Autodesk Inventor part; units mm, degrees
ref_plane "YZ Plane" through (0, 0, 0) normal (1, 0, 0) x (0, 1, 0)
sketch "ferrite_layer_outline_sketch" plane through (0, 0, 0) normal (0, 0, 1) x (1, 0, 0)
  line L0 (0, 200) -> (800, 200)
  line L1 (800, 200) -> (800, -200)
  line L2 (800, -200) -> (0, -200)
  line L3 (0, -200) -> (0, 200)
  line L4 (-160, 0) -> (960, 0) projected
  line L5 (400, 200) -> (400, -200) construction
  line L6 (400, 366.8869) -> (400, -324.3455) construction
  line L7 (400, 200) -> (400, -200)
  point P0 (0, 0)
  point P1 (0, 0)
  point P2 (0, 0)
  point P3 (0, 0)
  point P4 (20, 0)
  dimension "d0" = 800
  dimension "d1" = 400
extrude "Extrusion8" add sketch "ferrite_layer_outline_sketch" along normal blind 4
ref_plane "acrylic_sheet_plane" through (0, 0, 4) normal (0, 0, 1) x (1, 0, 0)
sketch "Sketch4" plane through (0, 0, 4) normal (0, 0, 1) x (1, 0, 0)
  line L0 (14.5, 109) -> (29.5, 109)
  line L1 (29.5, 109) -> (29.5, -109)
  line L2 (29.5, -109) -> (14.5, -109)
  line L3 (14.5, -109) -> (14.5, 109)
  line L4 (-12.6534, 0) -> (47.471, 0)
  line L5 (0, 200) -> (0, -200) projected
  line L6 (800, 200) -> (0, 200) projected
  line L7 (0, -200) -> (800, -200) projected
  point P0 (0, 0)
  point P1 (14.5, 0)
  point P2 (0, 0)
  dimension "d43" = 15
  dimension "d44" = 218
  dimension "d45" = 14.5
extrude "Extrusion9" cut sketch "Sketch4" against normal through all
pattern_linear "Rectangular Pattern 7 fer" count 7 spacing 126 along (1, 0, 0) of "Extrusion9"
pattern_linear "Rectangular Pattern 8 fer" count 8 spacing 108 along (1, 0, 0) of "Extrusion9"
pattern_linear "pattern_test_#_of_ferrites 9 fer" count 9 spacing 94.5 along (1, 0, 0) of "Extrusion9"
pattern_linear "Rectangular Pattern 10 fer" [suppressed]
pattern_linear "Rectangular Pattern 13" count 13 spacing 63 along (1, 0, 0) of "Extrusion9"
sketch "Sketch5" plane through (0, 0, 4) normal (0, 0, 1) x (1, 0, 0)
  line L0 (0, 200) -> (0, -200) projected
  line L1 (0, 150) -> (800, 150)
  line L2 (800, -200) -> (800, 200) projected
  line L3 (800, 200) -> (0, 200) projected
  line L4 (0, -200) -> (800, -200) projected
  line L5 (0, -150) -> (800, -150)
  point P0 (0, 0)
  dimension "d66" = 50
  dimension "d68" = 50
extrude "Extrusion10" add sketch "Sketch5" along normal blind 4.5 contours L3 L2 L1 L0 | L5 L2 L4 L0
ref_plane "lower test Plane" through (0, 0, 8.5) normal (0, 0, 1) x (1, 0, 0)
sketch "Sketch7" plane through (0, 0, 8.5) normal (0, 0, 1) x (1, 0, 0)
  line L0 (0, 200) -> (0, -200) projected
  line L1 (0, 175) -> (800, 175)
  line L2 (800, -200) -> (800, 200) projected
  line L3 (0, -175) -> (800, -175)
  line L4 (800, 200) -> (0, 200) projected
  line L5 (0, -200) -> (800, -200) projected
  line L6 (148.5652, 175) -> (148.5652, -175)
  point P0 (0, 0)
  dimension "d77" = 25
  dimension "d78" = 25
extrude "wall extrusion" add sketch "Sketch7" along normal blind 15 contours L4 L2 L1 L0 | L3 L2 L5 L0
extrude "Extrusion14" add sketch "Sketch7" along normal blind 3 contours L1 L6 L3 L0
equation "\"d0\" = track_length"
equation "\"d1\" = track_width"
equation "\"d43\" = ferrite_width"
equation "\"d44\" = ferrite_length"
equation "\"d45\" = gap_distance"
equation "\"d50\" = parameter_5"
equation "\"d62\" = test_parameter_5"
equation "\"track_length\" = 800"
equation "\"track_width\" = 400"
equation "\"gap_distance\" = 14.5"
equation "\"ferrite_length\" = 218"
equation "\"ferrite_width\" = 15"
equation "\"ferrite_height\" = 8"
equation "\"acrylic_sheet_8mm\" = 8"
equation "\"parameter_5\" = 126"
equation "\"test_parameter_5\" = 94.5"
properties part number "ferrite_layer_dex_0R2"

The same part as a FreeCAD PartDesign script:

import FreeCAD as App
import Part
import Sketcher

doc = App.newDocument("Part")
params = doc.addObject("Spreadsheet::Sheet", "Params")
for row, (alias, value) in enumerate([
    ("sketch1_width", "800 mm"),
    ("sketch1_height", "400 mm"),
    ("pad1_length", "4 mm"),
    ("sketch2_width", "15 mm"),
    ("sketch2_height", "218 mm"),
    ("linearpattern_pitch", "126 mm"),
    ("linearpattern2_pitch", "108 mm"),
    ("linearpattern3_pitch", "94.5 mm"),
    ("linearpattern4_pitch", "63 mm"),
    ("sketch3_height", "50 mm"),
    ("sketch3_width", "800 mm"),
    ("pad2_length", "4.5 mm"),
    ("sketch4_height", "25 mm"),
    ("sketch4_width", "800 mm"),
    ("pad3_length", "15 mm"),
    ("sketch5_height", "350 mm"),
    ("pad4_length", "3 mm"),
], start=1):
    params.set(f"A{row}", alias)
    params.set(f"B{row}", "=" + value)
    params.setAlias(f"B{row}", alias)

body = doc.addObject("PartDesign::Body", "Body")

# Sketch on XY plane
sketch1 = body.newObject("Sketcher::SketchObject", "Sketch")
sketch1.AttachmentSupport = (doc.getObject("XY_Plane"), [""])
sketch1.MapMode = "FlatFace"
sketch1.addGeometry([
    Part.LineSegment(App.Vector(0, 200, 0), App.Vector(0, -200, 0)),
    Part.LineSegment(App.Vector(0, -200, 0), App.Vector(800, -200, 0)),
    Part.LineSegment(App.Vector(800, -200, 0), App.Vector(800, 200, 0)),
    Part.LineSegment(App.Vector(800, 200, 0), App.Vector(0, 200, 0)),
], False)
sketch1.addConstraint([
    Sketcher.Constraint("Coincident", 0, 2, 1, 1),
    Sketcher.Constraint("Coincident", 1, 2, 2, 1),
    Sketcher.Constraint("Coincident", 2, 2, 3, 1),
    Sketcher.Constraint("Coincident", 3, 2, 0, 1),
    Sketcher.Constraint("Vertical", 0),
    Sketcher.Constraint("Horizontal", 1),
    Sketcher.Constraint("Vertical", 2),
    Sketcher.Constraint("Horizontal", 3),
    Sketcher.Constraint("Symmetric", 0, 2, 3, 2, -1, 1),
    Sketcher.Constraint("DistanceX", 1, 1, 1, 2, 800.0),
    Sketcher.Constraint("DistanceY", 0, 2, 0, 1, 400.0),
])
sketch1.setExpression("Constraints[9]", "Params.sketch1_width")
sketch1.setExpression("Constraints[10]", "Params.sketch1_height")
pad1 = body.newObject("PartDesign::Pad", "Pad")
pad1.Profile = sketch1
pad1.setExpression("Length", "Params.pad1_length")

# Sketch on XY plane
sketch2 = body.newObject("Sketcher::SketchObject", "Sketch001")
sketch2.AttachmentSupport = (doc.getObject("XY_Plane"), [""])
sketch2.MapMode = "FlatFace"
sketch2.AttachmentOffset = App.Placement(App.Vector(0, 0, 4), App.Rotation())
sketch2.addGeometry([
    Part.LineSegment(App.Vector(30, 109, 0), App.Vector(14, 109, 0)),
    Part.LineSegment(App.Vector(14, 109, 0), App.Vector(14, -109, 0)),
    Part.LineSegment(App.Vector(14, -109, 0), App.Vector(30, -109, 0)),
    Part.LineSegment(App.Vector(30, -109, 0), App.Vector(30, 109, 0)),
], False)
sketch2.addConstraint([
    Sketcher.Constraint("Coincident", 0, 2, 1, 1),
    Sketcher.Constraint("Coincident", 1, 2, 2, 1),
    Sketcher.Constraint("Coincident", 2, 2, 3, 1),
    Sketcher.Constraint("Coincident", 3, 2, 0, 1),
    Sketcher.Constraint("Horizontal", 0),
    Sketcher.Constraint("Vertical", 1),
    Sketcher.Constraint("Horizontal", 2),
    Sketcher.Constraint("Vertical", 3),
    Sketcher.Constraint("DistanceX", 0, 2, 0, 1, 15.0),
    Sketcher.Constraint("DistanceY", 1, 2, 1, 1, 218.0),
    Sketcher.Constraint("DistanceX", -1, 1, 0, 2, 14.5),
    Sketcher.Constraint("DistanceY", -1, 1, 0, 2, 109.0),
])
sketch2.setExpression("Constraints[8]", "Params.sketch2_width")
sketch2.setExpression("Constraints[9]", "Params.sketch2_height")
pocket1 = body.newObject("PartDesign::Pocket", "Pocket")
pocket1.Profile = sketch2
pocket1.Type = "ThroughAll"
doc.recompute()

linearpattern = body.newObject("PartDesign::LinearPattern", "LinearPattern")
linearpattern.Originals = [pocket1]
linearpattern.Direction = (doc.getObject("X_Axis"), [""])
linearpattern.Mode = "offset"
linearpattern.setExpression("Offset", "Params.linearpattern_pitch")
linearpattern.Occurrences = 7
body.Tip = linearpattern
doc.recompute()

linearpattern2 = body.newObject("PartDesign::LinearPattern", "LinearPattern001")
linearpattern2.Originals = [pocket1]
linearpattern2.Direction = (doc.getObject("X_Axis"), [""])
linearpattern2.Mode = "offset"
linearpattern2.setExpression("Offset", "Params.linearpattern2_pitch")
linearpattern2.Occurrences = 8
body.Tip = linearpattern2
doc.recompute()

linearpattern3 = body.newObject("PartDesign::LinearPattern", "LinearPattern002")
linearpattern3.Originals = [pocket1]
linearpattern3.Direction = (doc.getObject("X_Axis"), [""])
linearpattern3.Mode = "offset"
linearpattern3.setExpression("Offset", "Params.linearpattern3_pitch")
linearpattern3.Occurrences = 9
body.Tip = linearpattern3
doc.recompute()

linearpattern4 = body.newObject("PartDesign::LinearPattern", "LinearPattern003")
linearpattern4.Originals = [pocket1]
linearpattern4.Direction = (doc.getObject("X_Axis"), [""])
linearpattern4.Mode = "offset"
linearpattern4.setExpression("Offset", "Params.linearpattern4_pitch")
linearpattern4.Occurrences = 13
body.Tip = linearpattern4

# Sketch on XY plane
sketch3 = body.newObject("Sketcher::SketchObject", "Sketch002")
sketch3.AttachmentSupport = (doc.getObject("XY_Plane"), [""])
sketch3.MapMode = "FlatFace"
sketch3.AttachmentOffset = App.Placement(App.Vector(0, 0, 4), App.Rotation())
sketch3.addGeometry([
    Part.LineSegment(App.Vector(800, 200, 0), App.Vector(0, 200, 0)),  # 0
    Part.LineSegment(App.Vector(0, 200, 0), App.Vector(0, 150, 0)),  # 1
    Part.LineSegment(App.Vector(0, 150, 0), App.Vector(800, 150, 0)),  # 2
    Part.LineSegment(App.Vector(800, 150, 0), App.Vector(800, 200, 0)),  # 3
    Part.LineSegment(App.Vector(800, -150, 0), App.Vector(0, -150, 0)),  # 4
    Part.LineSegment(App.Vector(0, -150, 0), App.Vector(0, -200, 0)),  # 5
    Part.LineSegment(App.Vector(0, -200, 0), App.Vector(800, -200, 0)),  # 6
    Part.LineSegment(App.Vector(800, -200, 0), App.Vector(800, -150, 0)),  # 7
], False)
sketch3.addConstraint([
    Sketcher.Constraint("Coincident", 0, 2, 1, 1),
    Sketcher.Constraint("Coincident", 1, 2, 2, 1),
    Sketcher.Constraint("Coincident", 2, 2, 3, 1),
    Sketcher.Constraint("Coincident", 3, 2, 0, 1),
    Sketcher.Constraint("Coincident", 4, 2, 5, 1),
    Sketcher.Constraint("Coincident", 5, 2, 6, 1),
    Sketcher.Constraint("Coincident", 6, 2, 7, 1),
    Sketcher.Constraint("Coincident", 7, 2, 4, 1),
    Sketcher.Constraint("Horizontal", 0),
    Sketcher.Constraint("Vertical", 1),
    Sketcher.Constraint("Horizontal", 2),
    Sketcher.Constraint("Vertical", 3),
    Sketcher.Constraint("Horizontal", 4),
    Sketcher.Constraint("Vertical", 5),
    Sketcher.Constraint("Horizontal", 6),
    Sketcher.Constraint("Vertical", 7),
    Sketcher.Constraint("Symmetric", 1, 2, 4, 2, -1, 1),
    Sketcher.Constraint("Symmetric", 0, 2, 5, 2, -1),
    Sketcher.Constraint("Vertical", 3, 2, 6, 2),
    Sketcher.Constraint("DistanceY", 1, 2, 1, 1, 50.0),
    Sketcher.Constraint("DistanceX", 0, 2, 0, 1, 800.0),
    Sketcher.Constraint("DistanceY", -1, 1, 0, 2, 200.0),
])
sketch3.setExpression("Constraints[19]", "Params.sketch3_height")
sketch3.setExpression("Constraints[20]", "Params.sketch3_width")
pad2 = body.newObject("PartDesign::Pad", "Pad001")
pad2.Profile = sketch3
pad2.setExpression("Length", "Params.pad2_length")

# Sketch on XY plane
sketch4 = body.newObject("Sketcher::SketchObject", "Sketch003")
sketch4.AttachmentSupport = (doc.getObject("XY_Plane"), [""])
sketch4.MapMode = "FlatFace"
sketch4.AttachmentOffset = App.Placement(App.Vector(0, 0, 8.5), App.Rotation())
sketch4.addGeometry([
    Part.LineSegment(App.Vector(800, 200, 0), App.Vector(0, 200, 0)),  # 0
    Part.LineSegment(App.Vector(0, 200, 0), App.Vector(0, 175, 0)),  # 1
    Part.LineSegment(App.Vector(0, 175, 0), App.Vector(800, 175, 0)),  # 2
    Part.LineSegment(App.Vector(800, 175, 0), App.Vector(800, 200, 0)),  # 3
    Part.LineSegment(App.Vector(800, -175, 0), App.Vector(0, -175, 0)),  # 4
    Part.LineSegment(App.Vector(0, -175, 0), App.Vector(0, -200, 0)),  # 5
    Part.LineSegment(App.Vector(0, -200, 0), App.Vector(800, -200, 0)),  # 6
    Part.LineSegment(App.Vector(800, -200, 0), App.Vector(800, -175, 0)),  # 7
], False)
sketch4.addConstraint([
    Sketcher.Constraint("Coincident", 0, 2, 1, 1),
    Sketcher.Constraint("Coincident", 1, 2, 2, 1),
    Sketcher.Constraint("Coincident", 2, 2, 3, 1),
    Sketcher.Constraint("Coincident", 3, 2, 0, 1),
    Sketcher.Constraint("Coincident", 4, 2, 5, 1),
    Sketcher.Constraint("Coincident", 5, 2, 6, 1),
    Sketcher.Constraint("Coincident", 6, 2, 7, 1),
    Sketcher.Constraint("Coincident", 7, 2, 4, 1),
    Sketcher.Constraint("Horizontal", 0),
    Sketcher.Constraint("Vertical", 1),
    Sketcher.Constraint("Horizontal", 2),
    Sketcher.Constraint("Vertical", 3),
    Sketcher.Constraint("Horizontal", 4),
    Sketcher.Constraint("Vertical", 5),
    Sketcher.Constraint("Horizontal", 6),
    Sketcher.Constraint("Vertical", 7),
    Sketcher.Constraint("Symmetric", 1, 2, 4, 2, -1, 1),
    Sketcher.Constraint("Symmetric", 0, 2, 5, 2, -1),
    Sketcher.Constraint("Vertical", 3, 2, 6, 2),
    Sketcher.Constraint("DistanceY", 1, 2, 1, 1, 25.0),
    Sketcher.Constraint("DistanceX", 0, 2, 0, 1, 800.0),
    Sketcher.Constraint("DistanceY", -1, 1, 0, 2, 200.0),
])
sketch4.setExpression("Constraints[19]", "Params.sketch4_height")
sketch4.setExpression("Constraints[20]", "Params.sketch4_width")
pad3 = body.newObject("PartDesign::Pad", "Pad002")
pad3.Profile = sketch4
pad3.setExpression("Length", "Params.pad3_length")

# Sketch on XY plane
sketch5 = body.newObject("Sketcher::SketchObject", "Sketch004")
sketch5.AttachmentSupport = (doc.getObject("XY_Plane"), [""])
sketch5.MapMode = "FlatFace"
sketch5.AttachmentOffset = App.Placement(App.Vector(0, 0, 8.5), App.Rotation())
sketch5.addGeometry([
    Part.LineSegment(App.Vector(149, 175, 0), App.Vector(0, 175, 0)),
    Part.LineSegment(App.Vector(0, 175, 0), App.Vector(0, -175, 0)),
    Part.LineSegment(App.Vector(0, -175, 0), App.Vector(149, -175, 0)),
    Part.LineSegment(App.Vector(149, -175, 0), App.Vector(149, 175, 0)),
], False)
sketch5.addConstraint([
    Sketcher.Constraint("Coincident", 0, 2, 1, 1),
    Sketcher.Constraint("Coincident", 1, 2, 2, 1),
    Sketcher.Constraint("Coincident", 2, 2, 3, 1),
    Sketcher.Constraint("Coincident", 3, 2, 0, 1),
    Sketcher.Constraint("Horizontal", 0),
    Sketcher.Constraint("Vertical", 1),
    Sketcher.Constraint("Horizontal", 2),
    Sketcher.Constraint("Vertical", 3),
    Sketcher.Constraint("Symmetric", 0, 2, 1, 2, -1, 1),
    Sketcher.Constraint("DistanceY", 1, 2, 1, 1, 350.0),
    Sketcher.Constraint("DistanceX", 0, 2, 0, 1, 148.5652),
])
sketch5.setExpression("Constraints[9]", "Params.sketch5_height")
pad4 = body.newObject("PartDesign::Pad", "Pad003")
pad4.Profile = sketch5
pad4.setExpression("Length", "Params.pad4_length")

doc.recompute()
